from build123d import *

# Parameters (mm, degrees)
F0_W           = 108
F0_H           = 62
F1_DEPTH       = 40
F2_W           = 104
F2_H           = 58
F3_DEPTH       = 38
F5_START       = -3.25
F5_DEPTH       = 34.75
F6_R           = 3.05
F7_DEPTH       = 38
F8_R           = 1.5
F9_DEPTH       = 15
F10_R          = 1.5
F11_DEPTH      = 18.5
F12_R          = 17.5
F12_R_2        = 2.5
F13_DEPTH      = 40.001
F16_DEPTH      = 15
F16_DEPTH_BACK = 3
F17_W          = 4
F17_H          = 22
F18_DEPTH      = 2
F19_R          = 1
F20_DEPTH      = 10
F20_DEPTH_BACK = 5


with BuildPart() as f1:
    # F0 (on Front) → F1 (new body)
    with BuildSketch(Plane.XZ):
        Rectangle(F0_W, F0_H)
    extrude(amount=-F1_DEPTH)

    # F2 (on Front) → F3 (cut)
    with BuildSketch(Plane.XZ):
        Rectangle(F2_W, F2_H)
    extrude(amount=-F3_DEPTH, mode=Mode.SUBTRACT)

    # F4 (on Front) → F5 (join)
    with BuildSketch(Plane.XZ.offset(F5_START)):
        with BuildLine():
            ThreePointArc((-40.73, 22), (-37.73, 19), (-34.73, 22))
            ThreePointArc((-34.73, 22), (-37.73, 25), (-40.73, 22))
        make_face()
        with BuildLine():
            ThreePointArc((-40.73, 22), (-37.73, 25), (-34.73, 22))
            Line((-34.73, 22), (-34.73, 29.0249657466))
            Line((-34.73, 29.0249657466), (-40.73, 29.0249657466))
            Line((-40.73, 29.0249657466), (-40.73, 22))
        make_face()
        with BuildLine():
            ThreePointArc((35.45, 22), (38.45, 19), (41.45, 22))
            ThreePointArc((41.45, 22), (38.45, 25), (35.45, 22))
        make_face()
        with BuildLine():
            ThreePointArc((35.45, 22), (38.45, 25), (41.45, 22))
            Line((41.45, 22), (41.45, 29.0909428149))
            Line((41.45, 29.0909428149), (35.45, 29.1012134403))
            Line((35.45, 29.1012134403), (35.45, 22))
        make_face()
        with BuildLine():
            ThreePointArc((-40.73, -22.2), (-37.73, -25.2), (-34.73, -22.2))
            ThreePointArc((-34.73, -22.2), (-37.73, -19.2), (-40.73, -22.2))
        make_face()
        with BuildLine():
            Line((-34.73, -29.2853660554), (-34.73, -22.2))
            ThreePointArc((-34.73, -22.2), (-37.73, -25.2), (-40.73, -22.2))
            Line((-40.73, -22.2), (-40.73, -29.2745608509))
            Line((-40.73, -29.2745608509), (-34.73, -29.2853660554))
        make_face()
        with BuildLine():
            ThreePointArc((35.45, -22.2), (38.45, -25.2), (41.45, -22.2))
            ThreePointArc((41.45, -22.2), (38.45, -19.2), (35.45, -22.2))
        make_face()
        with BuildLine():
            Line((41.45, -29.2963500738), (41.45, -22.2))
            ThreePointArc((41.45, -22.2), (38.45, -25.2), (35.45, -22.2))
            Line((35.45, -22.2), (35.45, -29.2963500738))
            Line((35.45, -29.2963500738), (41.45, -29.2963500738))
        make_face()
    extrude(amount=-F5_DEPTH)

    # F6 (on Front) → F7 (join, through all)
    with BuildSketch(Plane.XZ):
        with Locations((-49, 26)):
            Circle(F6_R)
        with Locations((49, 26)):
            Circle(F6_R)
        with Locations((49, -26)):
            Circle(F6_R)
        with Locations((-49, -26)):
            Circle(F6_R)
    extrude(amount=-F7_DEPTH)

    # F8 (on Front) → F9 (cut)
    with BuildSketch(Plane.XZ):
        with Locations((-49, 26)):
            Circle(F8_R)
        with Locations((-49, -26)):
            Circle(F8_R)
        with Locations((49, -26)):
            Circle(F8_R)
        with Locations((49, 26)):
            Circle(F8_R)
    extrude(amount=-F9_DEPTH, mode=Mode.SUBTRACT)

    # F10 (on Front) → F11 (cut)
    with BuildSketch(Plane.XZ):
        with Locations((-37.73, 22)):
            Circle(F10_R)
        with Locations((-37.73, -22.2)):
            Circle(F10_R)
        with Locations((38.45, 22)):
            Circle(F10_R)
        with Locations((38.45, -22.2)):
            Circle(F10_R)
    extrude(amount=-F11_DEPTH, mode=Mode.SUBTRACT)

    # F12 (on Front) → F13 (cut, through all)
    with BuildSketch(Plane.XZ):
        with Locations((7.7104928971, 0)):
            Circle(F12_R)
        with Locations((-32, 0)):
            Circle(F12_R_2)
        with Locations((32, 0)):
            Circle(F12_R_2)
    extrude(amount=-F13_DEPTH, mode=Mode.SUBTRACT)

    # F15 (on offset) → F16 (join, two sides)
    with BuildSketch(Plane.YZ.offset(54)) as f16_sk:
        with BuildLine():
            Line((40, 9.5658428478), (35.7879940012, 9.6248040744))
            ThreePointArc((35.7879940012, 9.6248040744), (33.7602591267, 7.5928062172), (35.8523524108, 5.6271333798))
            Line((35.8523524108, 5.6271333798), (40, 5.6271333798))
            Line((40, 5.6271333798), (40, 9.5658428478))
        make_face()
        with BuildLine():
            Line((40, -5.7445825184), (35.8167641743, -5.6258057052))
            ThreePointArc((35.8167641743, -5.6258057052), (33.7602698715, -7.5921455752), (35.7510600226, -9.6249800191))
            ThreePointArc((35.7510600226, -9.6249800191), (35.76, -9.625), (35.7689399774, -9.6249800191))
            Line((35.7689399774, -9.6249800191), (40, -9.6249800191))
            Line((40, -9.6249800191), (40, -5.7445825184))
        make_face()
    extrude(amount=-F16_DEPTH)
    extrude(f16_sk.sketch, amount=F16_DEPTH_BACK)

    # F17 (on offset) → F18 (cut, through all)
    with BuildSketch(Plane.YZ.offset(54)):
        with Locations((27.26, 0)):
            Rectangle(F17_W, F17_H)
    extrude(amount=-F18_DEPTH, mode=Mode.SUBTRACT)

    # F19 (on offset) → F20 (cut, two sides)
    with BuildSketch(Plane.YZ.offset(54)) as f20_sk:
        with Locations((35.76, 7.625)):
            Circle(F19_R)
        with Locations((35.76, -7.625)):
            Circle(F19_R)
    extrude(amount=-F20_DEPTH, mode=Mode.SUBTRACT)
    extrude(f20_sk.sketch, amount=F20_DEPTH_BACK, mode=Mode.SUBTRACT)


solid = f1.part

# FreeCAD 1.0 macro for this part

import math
import FreeCAD as App
import Part
import Sketcher
Q = App.Units.Quantity


def add_polygon(sketch, points):
    """Adds a closed chain of lines whose ends are joined by coincident constraints."""
    first, n = sketch.GeometryCount, len(points)
    for a, b in zip(points, points[1:] + points[:1]):
        sketch.addGeometry(Part.LineSegment(App.Vector(*a, 0), App.Vector(*b, 0)), False)
    for i in range(n):
        sketch.addConstraint(Sketcher.Constraint("Coincident", first + i, 2, first + (i + 1) % n, 1))

doc = App.newDocument("Part")
body = doc.addObject("PartDesign::Body", "Body")

# Sketch on XZ plane
sketch1 = doc.addObject("Sketcher::SketchObject", "Sketch")
body.addObject(sketch1)
sketch1.AttachmentSupport = (doc.XZ_Plane, [""])
sketch1.MapMode = "FlatFace"
add_polygon(sketch1, [(-54, 31), (-54, -31), (54, -31), (54, 31)])  # lines 0-3
sketch1.addConstraint(Sketcher.Constraint("Vertical", 0))
sketch1.addConstraint(Sketcher.Constraint("Horizontal", 1))
sketch1.addConstraint(Sketcher.Constraint("Vertical", 2))
sketch1.addConstraint(Sketcher.Constraint("Horizontal", 3))
sketch1.addConstraint(Sketcher.Constraint("Symmetric", 0, 2, 2, 2, -1, 1))
sketch1.addConstraint(Sketcher.Constraint("DistanceX", 1, 1, 1, 2, Q("108 mm")))
sketch1.addConstraint(Sketcher.Constraint("DistanceY", 0, 2, 0, 1, Q("62 mm")))
pad1 = doc.addObject("PartDesign::Pad", "Pad")
body.addObject(pad1)
pad1.Profile = sketch1
pad1.Length = 40
pad1.Reversed = True

# Sketch on XZ plane
sketch2 = doc.addObject("Sketcher::SketchObject", "Sketch001")
body.addObject(sketch2)
sketch2.AttachmentSupport = (doc.XZ_Plane, [""])
sketch2.MapMode = "FlatFace"
add_polygon(sketch2, [(-52, 29), (-52, -29), (52, -29), (52, 29)])  # lines 0-3
sketch2.addConstraint(Sketcher.Constraint("Vertical", 0))
sketch2.addConstraint(Sketcher.Constraint("Horizontal", 1))
sketch2.addConstraint(Sketcher.Constraint("Vertical", 2))
sketch2.addConstraint(Sketcher.Constraint("Horizontal", 3))
sketch2.addConstraint(Sketcher.Constraint("Symmetric", 0, 2, 2, 2, -1, 1))
sketch2.addConstraint(Sketcher.Constraint("DistanceX", 1, 1, 1, 2, Q("104 mm")))
sketch2.addConstraint(Sketcher.Constraint("DistanceY", 0, 2, 0, 1, Q("58 mm")))
pocket1 = doc.addObject("PartDesign::Pocket", "Pocket")
body.addObject(pocket1)
pocket1.Profile = sketch2
pocket1.Length = 38

# Sketch on XZ plane
sketch3 = doc.addObject("Sketcher::SketchObject", "Sketch002")
body.addObject(sketch3)
sketch3.AttachmentSupport = (doc.XZ_Plane, [""])
sketch3.MapMode = "FlatFace"
sketch3.AttachmentOffset = App.Placement(App.Vector(0, 0, -3.25), App.Rotation())
sketch3.addGeometry(Part.ArcOfCircle(Part.Circle(App.Vector(-37.73, 22, 0), App.Vector(0, 0, 1), 3), math.radians(180), math.radians(360)), False)
sketch3.addGeometry(Part.LineSegment(App.Vector(-34.73, 22, 0), App.Vector(-34.73, 29.024966, 0)), False)
sketch3.addGeometry(Part.LineSegment(App.Vector(-34.73, 29.024966, 0), App.Vector(-40.73, 29.024966, 0)), False)
sketch3.addGeometry(Part.LineSegment(App.Vector(-40.73, 29.024966, 0), App.Vector(-40.73, 22, 0)), False)
sketch3.addGeometry(Part.ArcOfCircle(Part.Circle(App.Vector(38.45, 22, 0), App.Vector(0, 0, 1), 3), math.radians(180), math.radians(360)), False)
sketch3.addGeometry(Part.LineSegment(App.Vector(41.45, 22, 0), App.Vector(41.45, 29.090943, 0)), False)
sketch3.addGeometry(Part.LineSegment(App.Vector(41.45, 29.090943, 0), App.Vector(35.45, 29.101213, 0)), False)
sketch3.addGeometry(Part.LineSegment(App.Vector(35.45, 29.101213, 0), App.Vector(35.45, 22, 0)), False)
sketch3.addGeometry(Part.ArcOfCircle(Part.Circle(App.Vector(-37.73, -22.2, 0), App.Vector(0, 0, 1), 3), math.radians(0), math.radians(180)), False)
sketch3.addGeometry(Part.LineSegment(App.Vector(-40.73, -22.2, 0), App.Vector(-40.73, -29.274561, 0)), False)
sketch3.addGeometry(Part.LineSegment(App.Vector(-40.73, -29.274561, 0), App.Vector(-34.73, -29.285366, 0)), False)
sketch3.addGeometry(Part.LineSegment(App.Vector(-34.73, -29.285366, 0), App.Vector(-34.73, -22.2, 0)), False)
sketch3.addGeometry(Part.ArcOfCircle(Part.Circle(App.Vector(38.45, -22.2, 0), App.Vector(0, 0, 1), 3), math.radians(0), math.radians(180)), False)
sketch3.addGeometry(Part.LineSegment(App.Vector(35.45, -22.2, 0), App.Vector(35.45, -29.29635, 0)), False)
sketch3.addGeometry(Part.LineSegment(App.Vector(35.45, -29.29635, 0), App.Vector(41.45, -29.29635, 0)), False)
sketch3.addGeometry(Part.LineSegment(App.Vector(41.45, -29.29635, 0), App.Vector(41.45, -22.2, 0)), False)
sketch3.addConstraint(Sketcher.Constraint("Tangent", 0, 2, 1, 1))
sketch3.addConstraint(Sketcher.Constraint("Coincident", 1, 2, 2, 1))
sketch3.addConstraint(Sketcher.Constraint("Coincident", 2, 2, 3, 1))
sketch3.addConstraint(Sketcher.Constraint("Tangent", 3, 2, 0, 1))
sketch3.addConstraint(Sketcher.Constraint("Tangent", 4, 2, 5, 1))
sketch3.addConstraint(Sketcher.Constraint("Coincident", 5, 2, 6, 1))
sketch3.addConstraint(Sketcher.Constraint("Coincident", 6, 2, 7, 1))
sketch3.addConstraint(Sketcher.Constraint("Tangent", 7, 2, 4, 1))
sketch3.addConstraint(Sketcher.Constraint("Tangent", 8, 2, 9, 1))
sketch3.addConstraint(Sketcher.Constraint("Coincident", 9, 2, 10, 1))
sketch3.addConstraint(Sketcher.Constraint("Coincident", 10, 2, 11, 1))
sketch3.addConstraint(Sketcher.Constraint("Tangent", 11, 2, 8, 1))
sketch3.addConstraint(Sketcher.Constraint("Tangent", 12, 2, 13, 1))
sketch3.addConstraint(Sketcher.Constraint("Coincident", 13, 2, 14, 1))
sketch3.addConstraint(Sketcher.Constraint("Coincident", 14, 2, 15, 1))
sketch3.addConstraint(Sketcher.Constraint("Tangent", 15, 2, 12, 1))
sketch3.addConstraint(Sketcher.Constraint("Vertical", 1))
sketch3.addConstraint(Sketcher.Constraint("Horizontal", 2))
sketch3.addConstraint(Sketcher.Constraint("Vertical", 3))
sketch3.addConstraint(Sketcher.Constraint("Vertical", 5))
sketch3.addConstraint(Sketcher.Constraint("Vertical", 7))
sketch3.addConstraint(Sketcher.Constraint("Vertical", 9))
sketch3.addConstraint(Sketcher.Constraint("Vertical", 11))
sketch3.addConstraint(Sketcher.Constraint("Vertical", 13))
sketch3.addConstraint(Sketcher.Constraint("Horizontal", 14))
sketch3.addConstraint(Sketcher.Constraint("Vertical", 15))
sketch3.addConstraint(Sketcher.Constraint("Equal", 0, 4))
sketch3.addConstraint(Sketcher.Constraint("Equal", 4, 8))
sketch3.addConstraint(Sketcher.Constraint("Equal", 8, 12))
sketch3.addConstraint(Sketcher.Constraint("Horizontal", 0, 3, 4, 3))
sketch3.addConstraint(Sketcher.Constraint("Horizontal", 8, 3, 12, 3))
sketch3.addConstraint(Sketcher.Constraint("Vertical", 0, 3, 8, 3))
sketch3.addConstraint(Sketcher.Constraint("Vertical", 4, 3, 12, 3))
sketch3.addConstraint(Sketcher.Constraint("Radius", 0, Q("3 mm")))
sketch3.addConstraint(Sketcher.Constraint("DistanceY", -1, 1, 0, 3, Q("22 mm")))
sketch3.addConstraint(Sketcher.Constraint("DistanceY", 8, 3, -1, 1, Q("22.2 mm")))
sketch3.addConstraint(Sketcher.Constraint("DistanceX", 0, 3, -1, 1, Q("37.73 mm")))
sketch3.addConstraint(Sketcher.Constraint("DistanceX", -1, 1, 4, 3, Q("38.45 mm")))
sketch3.addConstraint(Sketcher.Constraint("DistanceY", 9, 2, 9, 1, Q("7.074561 mm")))
sketch3.addConstraint(Sketcher.Constraint("DistanceY", 13, 2, 13, 1, Q("7.09635 mm")))
sketch3.addConstraint(Sketcher.Constraint("DistanceY", 1, 1, 1, 2, Q("7.024966 mm")))
sketch3.addConstraint(Sketcher.Constraint("DistanceY", 5, 1, 5, 2, Q("7.090943 mm")))
sketch3.addConstraint(Sketcher.Constraint("DistanceY", 7, 2, 7, 1, Q("7.101213 mm")))
sketch3.addConstraint(Sketcher.Constraint("DistanceY", 11, 1, 11, 2, Q("7.085366 mm")))
pad2 = doc.addObject("PartDesign::Pad", "Pad001")
body.addObject(pad2)
pad2.Profile = sketch3
pad2.Length = 34.75
pad2.Reversed = True

# Sketch on XZ plane
sketch4 = doc.addObject("Sketcher::SketchObject", "Sketch003")
body.addObject(sketch4)
sketch4.AttachmentSupport = (doc.XZ_Plane, [""])
sketch4.MapMode = "FlatFace"
sketch4.addGeometry(Part.Circle(App.Vector(-49, 26, 0), App.Vector(0, 0, 1), 3.05), False)
sketch4.addGeometry(Part.Circle(App.Vector(49, 26, 0), App.Vector(0, 0, 1), 3.05), False)
sketch4.addGeometry(Part.Circle(App.Vector(49, -26, 0), App.Vector(0, 0, 1), 3.05), False)
sketch4.addGeometry(Part.Circle(App.Vector(-49, -26, 0), App.Vector(0, 0, 1), 3.05), False)
sketch4.addConstraint(Sketcher.Constraint("Equal", 0, 1))
sketch4.addConstraint(Sketcher.Constraint("Equal", 1, 2))
sketch4.addConstraint(Sketcher.Constraint("Equal", 2, 3))
sketch4.addConstraint(Sketcher.Constraint("Symmetric", 0, 3, 2, 3, -1, 1))
sketch4.addConstraint(Sketcher.Constraint("Symmetric", 1, 3, 3, 3, -1, 1))
sketch4.addConstraint(Sketcher.Constraint("Symmetric", 0, 3, 1, 3, -2))
sketch4.addConstraint(Sketcher.Constraint("Diameter", 0, Q("6.1 mm")))
sketch4.addConstraint(Sketcher.Constraint("DistanceX", 0, 3, -1, 1, Q("49 mm")))
sketch4.addConstraint(Sketcher.Constraint("DistanceY", -1, 1, 0, 3, Q("26 mm")))
pad3 = doc.addObject("PartDesign::Pad", "Pad002")
body.addObject(pad3)
pad3.Profile = sketch4
pad3.Type = "UpToLast"
pad3.Reversed = True

# Sketch on XZ plane
sketch5 = doc.addObject("Sketcher::SketchObject", "Sketch004")
body.addObject(sketch5)
sketch5.AttachmentSupport = (doc.XZ_Plane, [""])
sketch5.MapMode = "FlatFace"
sketch5.addGeometry(Part.Circle(App.Vector(-49, 26, 0), App.Vector(0, 0, 1), 1.5), False)
sketch5.addGeometry(Part.Circle(App.Vector(-49, -26, 0), App.Vector(0, 0, 1), 1.5), False)
sketch5.addGeometry(Part.Circle(App.Vector(49, -26, 0), App.Vector(0, 0, 1), 1.5), False)
sketch5.addGeometry(Part.Circle(App.Vector(49, 26, 0), App.Vector(0, 0, 1), 1.5), False)
sketch5.addConstraint(Sketcher.Constraint("Equal", 0, 1))
sketch5.addConstraint(Sketcher.Constraint("Equal", 1, 2))
sketch5.addConstraint(Sketcher.Constraint("Equal", 2, 3))
sketch5.addConstraint(Sketcher.Constraint("Symmetric", 0, 3, 2, 3, -1, 1))
sketch5.addConstraint(Sketcher.Constraint("Symmetric", 1, 3, 3, 3, -1, 1))
sketch5.addConstraint(Sketcher.Constraint("Symmetric", 1, 3, 2, 3, -2))
sketch5.addConstraint(Sketcher.Constraint("Diameter", 0, Q("3 mm")))
sketch5.addConstraint(Sketcher.Constraint("DistanceX", 0, 3, -1, 1, Q("49 mm")))
sketch5.addConstraint(Sketcher.Constraint("DistanceY", -1, 1, 0, 3, Q("26 mm")))
pocket2 = doc.addObject("PartDesign::Pocket", "Pocket001")
body.addObject(pocket2)
pocket2.Profile = sketch5
pocket2.Length = 15

# Sketch on XZ plane
sketch6 = doc.addObject("Sketcher::SketchObject", "Sketch005")
body.addObject(sketch6)
sketch6.AttachmentSupport = (doc.XZ_Plane, [""])
sketch6.MapMode = "FlatFace"
sketch6.addGeometry(Part.Circle(App.Vector(-37.73, 22, 0), App.Vector(0, 0, 1), 1.5), False)
sketch6.addGeometry(Part.Circle(App.Vector(-37.73, -22.2, 0), App.Vector(0, 0, 1), 1.5), False)
sketch6.addGeometry(Part.Circle(App.Vector(38.45, 22, 0), App.Vector(0, 0, 1), 1.5), False)
sketch6.addGeometry(Part.Circle(App.Vector(38.45, -22.2, 0), App.Vector(0, 0, 1), 1.5), False)
sketch6.addConstraint(Sketcher.Constraint("Equal", 0, 1))
sketch6.addConstraint(Sketcher.Constraint("Equal", 1, 2))
sketch6.addConstraint(Sketcher.Constraint("Equal", 2, 3))
sketch6.addConstraint(Sketcher.Constraint("Horizontal", 0, 3, 2, 3))
sketch6.addConstraint(Sketcher.Constraint("Horizontal", 1, 3, 3, 3))
sketch6.addConstraint(Sketcher.Constraint("Vertical", 0, 3, 1, 3))
sketch6.addConstraint(Sketcher.Constraint("Vertical", 2, 3, 3, 3))
sketch6.addConstraint(Sketcher.Constraint("Diameter", 0, Q("3 mm")))
sketch6.addConstraint(Sketcher.Constraint("DistanceY", -1, 1, 0, 3, Q("22 mm")))
sketch6.addConstraint(Sketcher.Constraint("DistanceY", 1, 3, -1, 1, Q("22.2 mm")))
sketch6.addConstraint(Sketcher.Constraint("DistanceX", 0, 3, -1, 1, Q("37.73 mm")))
sketch6.addConstraint(Sketcher.Constraint("DistanceX", -1, 1, 2, 3, Q("38.45 mm")))
pocket3 = doc.addObject("PartDesign::Pocket", "Pocket002")
body.addObject(pocket3)
pocket3.Profile = sketch6
pocket3.Length = 18.5

# Sketch on XZ plane
sketch7 = doc.addObject("Sketcher::SketchObject", "Sketch006")
body.addObject(sketch7)
sketch7.AttachmentSupport = (doc.XZ_Plane, [""])
sketch7.MapMode = "FlatFace"
sketch7.addGeometry(Part.Circle(App.Vector(7.710493, 0, 0), App.Vector(0, 0, 1), 17.5), False)
sketch7.addGeometry(Part.Circle(App.Vector(-32, 0, 0), App.Vector(0, 0, 1), 2.5), False)
sketch7.addGeometry(Part.Circle(App.Vector(32, 0, 0), App.Vector(0, 0, 1), 2.5), False)
sketch7.addConstraint(Sketcher.Constraint("Equal", 1, 2))
sketch7.addConstraint(Sketcher.Constraint("Symmetric", 1, 3, 2, 3, -1, 1))
sketch7.addConstraint(Sketcher.Constraint("PointOnObject", 0, 3, -1))
sketch7.addConstraint(Sketcher.Constraint("PointOnObject", 1, 3, -1))
sketch7.addConstraint(Sketcher.Constraint("Diameter", 0, Q("35 mm")))
sketch7.addConstraint(Sketcher.Constraint("Diameter", 1, Q("5 mm")))
sketch7.addConstraint(Sketcher.Constraint("DistanceX", 1, 3, -1, 1, Q("32 mm")))
sketch7.addConstraint(Sketcher.Constraint("DistanceX", -1, 1, 0, 3, Q("7.710493 mm")))
pocket4 = doc.addObject("PartDesign::Pocket", "Pocket003")
body.addObject(pocket4)
pocket4.Profile = sketch7
pocket4.Type = "ThroughAll"

# Sketch on YZ plane
sketch8 = doc.addObject("Sketcher::SketchObject", "Sketch007")
body.addObject(sketch8)
sketch8.AttachmentSupport = (doc.YZ_Plane, [""])
sketch8.MapMode = "FlatFace"
sketch8.AttachmentOffset = App.Placement(App.Vector(0, 0, 54), App.Rotation())
sketch8.addGeometry(Part.LineSegment(App.Vector(40, 9.565843, 0), App.Vector(35.787994, 9.624804, 0)), False)
sketch8.addGeometry(Part.ArcOfCircle(Part.Circle(App.Vector(35.76, 7.625, 0), App.Vector(0, 0, 1), 2), math.radians(89.198005), math.radians(272.646643)), False)
sketch8.addGeometry(Part.LineSegment(App.Vector(35.852352, 5.627133, 0), App.Vector(40, 5.627133, 0)), False)
sketch8.addGeometry(Part.LineSegment(App.Vector(40, 5.627133, 0), App.Vector(40, 9.565843, 0)), False)
sketch8.addGeometry(Part.LineSegment(App.Vector(40, -5.744583, 0), App.Vector(35.816764, -5.625806, 0)), False)
sketch8.addGeometry(Part.ArcOfCircle(Part.Circle(App.Vector(35.76, -7.625, 0), App.Vector(0, 0, 1), 2), math.radians(88.373608), math.radians(269.743888)), False)
sketch8.addGeometry(Part.ArcOfCircle(Part.Circle(App.Vector(35.76, -7.625, 0), App.Vector(0, 0, 1), 2), math.radians(-90.256112), math.radians(-89.743888)), False)
sketch8.addGeometry(Part.LineSegment(App.Vector(35.76894, -9.62498, 0), App.Vector(40, -9.62498, 0)), False)
sketch8.addGeometry(Part.LineSegment(App.Vector(40, -9.62498, 0), App.Vector(40, -5.744583, 0)), False)
sketch8.addConstraint(Sketcher.Constraint("Coincident", 0, 2, 1, 1))
sketch8.addConstraint(Sketcher.Constraint("Coincident", 1, 2, 2, 1))
sketch8.addConstraint(Sketcher.Constraint("Coincident", 2, 2, 3, 1))
sketch8.addConstraint(Sketcher.Constraint("Coincident", 3, 2, 0, 1))
sketch8.addConstraint(Sketcher.Constraint("Coincident", 4, 2, 5, 1))
sketch8.addConstraint(Sketcher.Constraint("Coincident", 5, 2, 6, 1))
sketch8.addConstraint(Sketcher.Constraint("Coincident", 6, 2, 7, 1))
sketch8.addConstraint(Sketcher.Constraint("Coincident", 7, 2, 8, 1))
sketch8.addConstraint(Sketcher.Constraint("Coincident", 8, 2, 4, 1))
sketch8.addConstraint(Sketcher.Constraint("Horizontal", 2))
sketch8.addConstraint(Sketcher.Constraint("Vertical", 3))
sketch8.addConstraint(Sketcher.Constraint("Horizontal", 7))
sketch8.addConstraint(Sketcher.Constraint("Vertical", 8))
sketch8.addConstraint(Sketcher.Constraint("Coincident", 6, 3, 5, 3))
sketch8.addConstraint(Sketcher.Constraint("Radius", 1, Q("2 mm")))
sketch8.addConstraint(Sketcher.Constraint("Radius", 5, Q("2 mm")))
sketch8.addConstraint(Sketcher.Constraint("DistanceX", -1, 1, 2, 2, Q("40 mm")))
sketch8.addConstraint(Sketcher.Constraint("DistanceX", -1, 1, 7, 2, Q("40 mm")))
sketch8.addConstraint(Sketcher.Constraint("DistanceX", -1, 1, 1, 3, Q("35.76 mm")))
sketch8.addConstraint(Sketcher.Constraint("DistanceX", -1, 1, 5, 3, Q("35.76 mm")))
sketch8.addConstraint(Sketcher.Constraint("DistanceY", 5, 3, 1, 3, Q("15.25 mm")))
sketch8.addConstraint(Sketcher.Constraint("DistanceY", -1, 1, 1, 3, Q("7.625 mm")))
sketch8.addConstraint(Sketcher.Constraint("DistanceX", 7, 1, 7, 2, Q("4.23106 mm")))
sketch8.addConstraint(Sketcher.Constraint("DistanceY", 3, 1, 3, 2, Q("3.938709 mm")))
sketch8.addConstraint(Sketcher.Constraint("Distance", 0, Q("4.212419 mm")))
sketch8.addConstraint(Sketcher.Constraint("Distance", 4, Q("4.184922 mm")))
sketch8.addConstraint(Sketcher.Constraint("DistanceX", 2, 1, 2, 2, Q("4.147648 mm")))
sketch8.addConstraint(Sketcher.Constraint("DistanceY", 8, 1, 8, 2, Q("3.880398 mm")))
sketch8.addConstraint(Sketcher.Constraint("DistanceX", -1, 1, 5, 2, Q("35.75106 mm")))
pad4 = doc.addObject("PartDesign::Pad", "Pad003")
body.addObject(pad4)
pad4.Profile = sketch8
pad4.Type = "TwoLengths"
pad4.Length = 15
pad4.Length2 = 3
pad4.Reversed = True

# Sketch on YZ plane
sketch9 = doc.addObject("Sketcher::SketchObject", "Sketch008")
body.addObject(sketch9)
sketch9.AttachmentSupport = (doc.YZ_Plane, [""])
sketch9.MapMode = "FlatFace"
sketch9.AttachmentOffset = App.Placement(App.Vector(0, 0, 54), App.Rotation())
add_polygon(sketch9, [(25.26, 11), (25.26, -11), (29.26, -11), (29.26, 11)])  # lines 0-3
sketch9.addConstraint(Sketcher.Constraint("Vertical", 0))
sketch9.addConstraint(Sketcher.Constraint("Horizontal", 1))
sketch9.addConstraint(Sketcher.Constraint("Vertical", 2))
sketch9.addConstraint(Sketcher.Constraint("Horizontal", 3))
sketch9.addConstraint(Sketcher.Constraint("DistanceX", 1, 1, 1, 2, Q("4 mm")))
sketch9.addConstraint(Sketcher.Constraint("DistanceY", 0, 2, 0, 1, Q("22 mm")))
sketch9.addConstraint(Sketcher.Constraint("DistanceY", 0, 2, -1, 1, Q("11 mm")))
sketch9.addConstraint(Sketcher.Constraint("DistanceX", -1, 1, 0, 2, Q("25.26 mm")))
pocket5 = doc.addObject("PartDesign::Pocket", "Pocket004")
body.addObject(pocket5)
pocket5.Profile = sketch9
pocket5.Length = 2

# Sketch on YZ plane
sketch10 = doc.addObject("Sketcher::SketchObject", "Sketch009")
body.addObject(sketch10)
sketch10.AttachmentSupport = (doc.YZ_Plane, [""])
sketch10.MapMode = "FlatFace"
sketch10.AttachmentOffset = App.Placement(App.Vector(0, 0, 54), App.Rotation())
sketch10.addGeometry(Part.Circle(App.Vector(35.76, 7.625, 0), App.Vector(0, 0, 1), 1), False)
sketch10.addGeometry(Part.Circle(App.Vector(35.76, -7.625, 0), App.Vector(0, 0, 1), 1), False)
sketch10.addConstraint(Sketcher.Constraint("Equal", 0, 1))
sketch10.addConstraint(Sketcher.Constraint("Symmetric", 0, 3, 1, 3, -1))
sketch10.addConstraint(Sketcher.Constraint("Diameter", 0, Q("2 mm")))
sketch10.addConstraint(Sketcher.Constraint("DistanceX", -1, 1, 0, 3, Q("35.76 mm")))
sketch10.addConstraint(Sketcher.Constraint("DistanceY", 1, 3, 0, 3, Q("15.25 mm")))
pocket6 = doc.addObject("PartDesign::Pocket", "Pocket005")
body.addObject(pocket6)
pocket6.Profile = sketch10
pocket6.Type = "TwoLengths"
pocket6.Length = 10
pocket6.Length2 = 5

doc.recompute()
